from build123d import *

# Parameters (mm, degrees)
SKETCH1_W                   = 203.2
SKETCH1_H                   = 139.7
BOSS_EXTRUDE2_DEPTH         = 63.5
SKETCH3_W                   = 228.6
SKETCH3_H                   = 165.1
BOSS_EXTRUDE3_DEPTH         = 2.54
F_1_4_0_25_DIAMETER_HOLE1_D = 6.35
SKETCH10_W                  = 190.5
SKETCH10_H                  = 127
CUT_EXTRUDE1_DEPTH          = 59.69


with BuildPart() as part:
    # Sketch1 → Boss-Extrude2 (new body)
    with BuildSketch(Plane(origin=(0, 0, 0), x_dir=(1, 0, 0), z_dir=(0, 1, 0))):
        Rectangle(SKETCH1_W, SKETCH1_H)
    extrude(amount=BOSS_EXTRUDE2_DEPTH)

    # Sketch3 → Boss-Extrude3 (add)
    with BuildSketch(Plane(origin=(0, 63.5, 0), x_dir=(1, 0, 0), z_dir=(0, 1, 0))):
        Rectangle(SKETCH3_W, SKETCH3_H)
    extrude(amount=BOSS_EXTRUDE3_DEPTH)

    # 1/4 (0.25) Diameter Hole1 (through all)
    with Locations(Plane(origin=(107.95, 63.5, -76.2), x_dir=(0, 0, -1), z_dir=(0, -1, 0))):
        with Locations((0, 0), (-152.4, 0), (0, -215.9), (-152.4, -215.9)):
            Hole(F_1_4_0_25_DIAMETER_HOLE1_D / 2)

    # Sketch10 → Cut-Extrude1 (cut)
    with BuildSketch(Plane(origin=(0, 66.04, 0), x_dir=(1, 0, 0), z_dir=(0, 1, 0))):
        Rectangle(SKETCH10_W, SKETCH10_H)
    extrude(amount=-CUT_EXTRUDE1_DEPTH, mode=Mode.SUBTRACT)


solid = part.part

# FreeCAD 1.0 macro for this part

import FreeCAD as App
import Part
import Sketcher
Q = App.Units.Quantity

doc = App.newDocument("Part")
body = doc.addObject("PartDesign::Body", "Body")

# Sketch on XZ plane
sketch1 = body.newObject("Sketcher::SketchObject", "Sketch")
sketch1.AttachmentSupport = (doc.getObject("XZ_Plane"), [""])
sketch1.MapMode = "FlatFace"
sketch1.addGeometry([
    Part.LineSegment(App.Vector(-102, -70, 0), App.Vector(-102, 70, 0)),
    Part.LineSegment(App.Vector(-102, 70, 0), App.Vector(102, 70, 0)),
    Part.LineSegment(App.Vector(102, 70, 0), App.Vector(102, -70, 0)),
    Part.LineSegment(App.Vector(102, -70, 0), App.Vector(-102, -70, 0)),
], False)
sketch1.addConstraint([
    Sketcher.Constraint("Coincident", 0, 2, 1, 1),
    Sketcher.Constraint("Coincident", 1, 2, 2, 1),
    Sketcher.Constraint("Coincident", 2, 2, 3, 1),
    Sketcher.Constraint("Coincident", 3, 2, 0, 1),
    Sketcher.Constraint("Vertical", 0),
    Sketcher.Constraint("Horizontal", 1),
    Sketcher.Constraint("Vertical", 2),
    Sketcher.Constraint("Horizontal", 3),
    Sketcher.Constraint("Symmetric", 0, 2, 2, 2, -1, 1),
    Sketcher.Constraint("DistanceX", 1, 1, 1, 2, Q("8 in")),
    Sketcher.Constraint("DistanceY", 0, 1, 0, 2, Q("5.5 in")),
])
pad1 = body.newObject("PartDesign::Pad", "Pad")
pad1.Profile = sketch1
pad1.Length = Q("2.5 in")
pad1.Reversed = True

# Sketch on XZ plane
sketch2 = body.newObject("Sketcher::SketchObject", "Sketch001")
sketch2.AttachmentSupport = (doc.getObject("XZ_Plane"), [""])
sketch2.MapMode = "FlatFace"
sketch2.AttachmentOffset = App.Placement(App.Vector(0, 0, -2.5 * 25.4), App.Rotation())
sketch2.addGeometry([
    Part.LineSegment(App.Vector(-114, -83, 0), App.Vector(-114, 83, 0)),
    Part.LineSegment(App.Vector(-114, 83, 0), App.Vector(114, 83, 0)),
    Part.LineSegment(App.Vector(114, 83, 0), App.Vector(114, -83, 0)),
    Part.LineSegment(App.Vector(114, -83, 0), App.Vector(-114, -83, 0)),
], False)
sketch2.addConstraint([
    Sketcher.Constraint("Coincident", 0, 2, 1, 1),
    Sketcher.Constraint("Coincident", 1, 2, 2, 1),
    Sketcher.Constraint("Coincident", 2, 2, 3, 1),
    Sketcher.Constraint("Coincident", 3, 2, 0, 1),
    Sketcher.Constraint("Vertical", 0),
    Sketcher.Constraint("Horizontal", 1),
    Sketcher.Constraint("Vertical", 2),
    Sketcher.Constraint("Horizontal", 3),
    Sketcher.Constraint("Symmetric", 0, 2, 2, 2, -1, 1),
    Sketcher.Constraint("DistanceX", 1, 1, 1, 2, Q("9 in")),
    Sketcher.Constraint("DistanceY", 0, 1, 0, 2, Q("6.5 in")),
])
pad2 = body.newObject("PartDesign::Pad", "Pad001")
pad2.Profile = sketch2
pad2.Length = Q("0.1 in")
pad2.Reversed = True

# Sketch on XZ plane
sketch3 = body.newObject("Sketcher::SketchObject", "Sketch002")
sketch3.AttachmentSupport = (doc.getObject("XZ_Plane"), [""])
sketch3.MapMode = "FlatFace"
sketch3.AttachmentOffset = App.Placement(App.Vector(0, 0, -2.5 * 25.4), App.Rotation())
sketch3.addGeometry([
    Part.Circle(App.Vector(108, -76.2, 0), App.Vector(0, 0, 1), 3.2),
    Part.Circle(App.Vector(108, 76.2, 0), App.Vector(0, 0, 1), 3.2),
    Part.Circle(App.Vector(-108, -76.2, 0), App.Vector(0, 0, 1), 3.2),
    Part.Circle(App.Vector(-108, 76.2, 0), App.Vector(0, 0, 1), 3.2),
], False)
sketch3.addConstraint([
    Sketcher.Constraint("Equal", 0, 1),
    Sketcher.Constraint("Equal", 1, 2),
    Sketcher.Constraint("Equal", 2, 3),
    Sketcher.Constraint("Symmetric", 1, 3, 2, 3, -1, 1),
    Sketcher.Constraint("Symmetric", 0, 3, 3, 3, -1, 1),
    Sketcher.Constraint("Symmetric", 0, 3, 2, 3, -2),
    Sketcher.Constraint("Diameter", 0, Q("0.25 in")),
    Sketcher.Constraint("DistanceY", 0, 3, -1, 1, Q("3 in")),
    Sketcher.Constraint("DistanceX", 2, 3, 0, 3, Q("8.5 in")),
])
doc.recompute()
hole = body.newObject("PartDesign::Hole", "Hole")
hole.Profile = sketch3
hole.ThreadType = "None"
hole.Diameter = Q("0.25 in")
hole.DepthType = "ThroughAll"

# Sketch on XZ plane
sketch4 = body.newObject("Sketcher::SketchObject", "Sketch003")
sketch4.AttachmentSupport = (doc.getObject("XZ_Plane"), [""])
sketch4.MapMode = "FlatFace"
sketch4.AttachmentOffset = App.Placement(App.Vector(0, 0, -2.6 * 25.4), App.Rotation())
sketch4.addGeometry([
    Part.LineSegment(App.Vector(-95, -64, 0), App.Vector(-95, 64, 0)),
    Part.LineSegment(App.Vector(-95, 64, 0), App.Vector(95, 64, 0)),
    Part.LineSegment(App.Vector(95, 64, 0), App.Vector(95, -64, 0)),
    Part.LineSegment(App.Vector(95, -64, 0), App.Vector(-95, -64, 0)),
], False)
sketch4.addConstraint([
    Sketcher.Constraint("Coincident", 0, 2, 1, 1),
    Sketcher.Constraint("Coincident", 1, 2, 2, 1),
    Sketcher.Constraint("Coincident", 2, 2, 3, 1),
    Sketcher.Constraint("Coincident", 3, 2, 0, 1),
    Sketcher.Constraint("Vertical", 0),
    Sketcher.Constraint("Horizontal", 1),
    Sketcher.Constraint("Vertical", 2),
    Sketcher.Constraint("Horizontal", 3),
    Sketcher.Constraint("Symmetric", 0, 2, 2, 2, -1, 1),
    Sketcher.Constraint("DistanceY", 0, 1, 0, 2, Q("5 in")),
    Sketcher.Constraint("DistanceX", 1, 1, 1, 2, Q("7.5 in")),
])
pocket1 = body.newObject("PartDesign::Pocket", "Pocket")
pocket1.Profile = sketch4
pocket1.Length = Q("2.35 in")
pocket1.Reversed = True

doc.recompute()
